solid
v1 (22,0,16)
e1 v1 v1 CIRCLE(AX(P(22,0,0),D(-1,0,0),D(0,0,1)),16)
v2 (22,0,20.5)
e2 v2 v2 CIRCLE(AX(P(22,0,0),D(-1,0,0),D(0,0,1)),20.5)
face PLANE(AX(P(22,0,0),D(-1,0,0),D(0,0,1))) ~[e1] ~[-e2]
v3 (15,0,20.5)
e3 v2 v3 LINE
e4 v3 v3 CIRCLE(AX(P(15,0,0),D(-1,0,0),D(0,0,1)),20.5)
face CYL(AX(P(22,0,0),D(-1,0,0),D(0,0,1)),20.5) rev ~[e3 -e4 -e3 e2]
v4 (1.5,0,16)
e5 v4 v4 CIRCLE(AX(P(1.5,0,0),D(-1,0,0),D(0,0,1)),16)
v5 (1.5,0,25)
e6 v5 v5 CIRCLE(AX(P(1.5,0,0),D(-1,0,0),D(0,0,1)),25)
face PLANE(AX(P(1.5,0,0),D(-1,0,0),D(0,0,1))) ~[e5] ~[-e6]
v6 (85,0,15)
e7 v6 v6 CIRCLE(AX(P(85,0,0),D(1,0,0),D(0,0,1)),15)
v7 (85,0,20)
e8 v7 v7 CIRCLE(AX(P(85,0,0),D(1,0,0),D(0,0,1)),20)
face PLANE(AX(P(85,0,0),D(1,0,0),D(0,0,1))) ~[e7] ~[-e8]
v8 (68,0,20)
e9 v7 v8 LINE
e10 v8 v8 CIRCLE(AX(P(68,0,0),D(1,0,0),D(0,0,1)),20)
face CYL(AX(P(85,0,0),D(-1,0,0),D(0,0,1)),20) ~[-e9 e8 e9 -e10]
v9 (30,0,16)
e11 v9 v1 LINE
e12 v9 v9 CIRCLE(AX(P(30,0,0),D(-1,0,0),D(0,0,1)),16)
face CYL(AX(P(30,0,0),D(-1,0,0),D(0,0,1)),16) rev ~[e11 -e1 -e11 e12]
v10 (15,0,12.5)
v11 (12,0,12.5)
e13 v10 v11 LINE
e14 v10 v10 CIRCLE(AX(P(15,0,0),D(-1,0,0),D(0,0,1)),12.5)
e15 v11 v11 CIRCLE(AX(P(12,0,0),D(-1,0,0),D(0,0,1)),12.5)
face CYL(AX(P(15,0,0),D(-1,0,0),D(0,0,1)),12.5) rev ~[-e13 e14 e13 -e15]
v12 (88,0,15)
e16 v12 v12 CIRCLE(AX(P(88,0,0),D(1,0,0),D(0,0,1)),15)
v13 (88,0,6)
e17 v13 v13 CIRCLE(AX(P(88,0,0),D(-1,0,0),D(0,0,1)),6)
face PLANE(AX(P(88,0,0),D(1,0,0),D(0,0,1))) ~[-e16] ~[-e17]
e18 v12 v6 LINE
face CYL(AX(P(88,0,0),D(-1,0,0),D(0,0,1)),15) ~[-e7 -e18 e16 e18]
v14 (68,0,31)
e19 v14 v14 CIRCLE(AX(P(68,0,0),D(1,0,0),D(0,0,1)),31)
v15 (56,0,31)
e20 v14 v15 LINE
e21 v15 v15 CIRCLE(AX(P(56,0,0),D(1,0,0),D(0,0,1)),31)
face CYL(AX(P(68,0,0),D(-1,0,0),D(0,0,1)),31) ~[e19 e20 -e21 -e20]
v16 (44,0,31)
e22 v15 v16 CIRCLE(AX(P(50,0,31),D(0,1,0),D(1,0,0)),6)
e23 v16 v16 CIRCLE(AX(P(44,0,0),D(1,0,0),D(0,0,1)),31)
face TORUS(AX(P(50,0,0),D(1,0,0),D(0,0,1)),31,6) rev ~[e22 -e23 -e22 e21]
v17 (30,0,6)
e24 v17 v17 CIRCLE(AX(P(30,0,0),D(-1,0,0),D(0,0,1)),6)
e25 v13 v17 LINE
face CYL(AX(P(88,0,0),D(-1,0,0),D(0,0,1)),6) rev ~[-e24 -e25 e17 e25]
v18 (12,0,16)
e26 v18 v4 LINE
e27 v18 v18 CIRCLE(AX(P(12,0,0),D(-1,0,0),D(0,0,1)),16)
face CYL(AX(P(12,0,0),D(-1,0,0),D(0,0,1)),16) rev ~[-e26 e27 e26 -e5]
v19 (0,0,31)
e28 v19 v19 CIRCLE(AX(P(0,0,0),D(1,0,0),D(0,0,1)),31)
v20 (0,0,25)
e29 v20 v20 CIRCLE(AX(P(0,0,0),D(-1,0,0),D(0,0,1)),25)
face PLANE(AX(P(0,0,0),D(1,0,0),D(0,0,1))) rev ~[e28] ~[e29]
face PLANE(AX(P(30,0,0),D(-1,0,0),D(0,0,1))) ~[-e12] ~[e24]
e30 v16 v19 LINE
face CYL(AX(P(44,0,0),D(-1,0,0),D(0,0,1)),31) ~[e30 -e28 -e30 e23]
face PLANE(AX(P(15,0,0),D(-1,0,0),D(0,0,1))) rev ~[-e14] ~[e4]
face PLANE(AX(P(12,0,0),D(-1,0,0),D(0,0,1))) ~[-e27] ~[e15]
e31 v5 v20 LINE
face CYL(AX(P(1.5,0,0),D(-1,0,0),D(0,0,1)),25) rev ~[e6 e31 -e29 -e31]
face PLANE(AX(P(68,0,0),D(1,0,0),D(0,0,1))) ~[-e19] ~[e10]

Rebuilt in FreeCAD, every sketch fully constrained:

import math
import FreeCAD as App
import Part
import Sketcher
from FreeCAD import Vector


def add_polygon(sketch, points):
    """Adds a closed chain of lines whose ends are joined by coincident constraints."""
    first, n = sketch.GeometryCount, len(points)
    for a, b in zip(points, points[1:] + points[:1]):
        sketch.addGeometry(Part.LineSegment(App.Vector(*a, 0), App.Vector(*b, 0)), False)
    for i in range(n):
        sketch.addConstraint(Sketcher.Constraint("Coincident", first + i, 2, first + (i + 1) % n, 1))

doc = App.newDocument("Part")
body = doc.addObject("PartDesign::Body", "Body")

# Sketch on XZ plane
sketch1 = body.newObject("Sketcher::SketchObject", "Sketch")
sketch1.AttachmentSupport = (doc.getObject("XZ_Plane"), [""])
sketch1.MapMode = "FlatFace"
sketch1.addGeometry([
    Part.LineSegment(Vector(0, 31, 0), Vector(0, 0, 0)),  # 0
    Part.LineSegment(Vector(0, 0, 0), Vector(88, 0, 0)),  # 1
    Part.LineSegment(Vector(88, 0, 0), Vector(88, 15, 0)),  # 2
    Part.LineSegment(Vector(88, 15, 0), Vector(85, 15, 0)),  # 3
    Part.LineSegment(Vector(85, 15, 0), Vector(85, 20, 0)),  # 4
    Part.LineSegment(Vector(85, 20, 0), Vector(68, 20, 0)),  # 5
    Part.LineSegment(Vector(68, 20, 0), Vector(68, 31, 0)),  # 6
    Part.LineSegment(Vector(68, 31, 0), Vector(56, 31, 0)),  # 7
    Part.ArcOfCircle(Part.Circle(Vector(50, 31, 0), Vector(0, 0, 1), 6), math.radians(180), math.radians(360)),  # 8
    Part.LineSegment(Vector(44, 31, 0), Vector(0, 31, 0)),  # 9
], False)
sketch1.addConstraint([
    Sketcher.Constraint("Coincident", 0, 2, 1, 1),
    Sketcher.Constraint("Coincident", 1, 2, 2, 1),
    Sketcher.Constraint("Coincident", 2, 2, 3, 1),
    Sketcher.Constraint("Coincident", 3, 2, 4, 1),
    Sketcher.Constraint("Coincident", 4, 2, 5, 1),
    Sketcher.Constraint("Coincident", 5, 2, 6, 1),
    Sketcher.Constraint("Coincident", 6, 2, 7, 1),
    Sketcher.Constraint("Coincident", 7, 2, 8, 2),
    Sketcher.Constraint("Coincident", 8, 1, 9, 1),
    Sketcher.Constraint("Coincident", 9, 2, 0, 1),
    Sketcher.Constraint("Vertical", 0),
    Sketcher.Constraint("Horizontal", 1),
    Sketcher.Constraint("Vertical", 2),
    Sketcher.Constraint("Horizontal", 3),
    Sketcher.Constraint("Vertical", 4),
    Sketcher.Constraint("Horizontal", 5),
    Sketcher.Constraint("Vertical", 6),
    Sketcher.Constraint("Horizontal", 7),
    Sketcher.Constraint("Horizontal", 9),
    Sketcher.Constraint("Coincident", 0, 2, -1, 1),
    Sketcher.Constraint("Horizontal", 8, 3, 6, 2),
    Sketcher.Constraint("Horizontal", 7, 2, 8, 1),
    Sketcher.Constraint("Radius", 8, 6.0),
    Sketcher.Constraint("DistanceX", 1, 1, 1, 2, 88.0),
    Sketcher.Constraint("DistanceX", 3, 2, 3, 1, 3.0),
    Sketcher.Constraint("DistanceX", 5, 2, 5, 1, 17.0),
    Sketcher.Constraint("DistanceX", 7, 2, 7, 1, 12.0),
    Sketcher.Constraint("DistanceY", 0, 2, 0, 1, 31.0),
    Sketcher.Constraint("DistanceY", 2, 1, 2, 2, 15.0),
    Sketcher.Constraint("DistanceY", 4, 1, 4, 2, 5.0),
])
revolution = body.newObject("PartDesign::Revolution", "Revolution")
revolution.Profile = sketch1
revolution.ReferenceAxis = (sketch1, ["H_Axis"])
revolution.Angle = 360

# Sketch on XZ plane
sketch2 = body.newObject("Sketcher::SketchObject", "Sketch001")
sketch2.AttachmentSupport = (doc.getObject("XZ_Plane"), [""])
sketch2.MapMode = "FlatFace"
add_polygon(sketch2, [(0, 25), (0, 0), (88, 0), (88, 6), (30, 6), (30, 16), (22, 16), (22, 20.5), (15, 20.5), (15, 12.5), (12, 12.5), (12, 16), (1.5, 16), (1.5, 25)])  # lines 0-13
sketch2.addConstraint([
    Sketcher.Constraint("Vertical", 0),
    Sketcher.Constraint("Horizontal", 1),
    Sketcher.Constraint("Vertical", 2),
    Sketcher.Constraint("Horizontal", 3),
    Sketcher.Constraint("Vertical", 4),
    Sketcher.Constraint("Horizontal", 5),
    Sketcher.Constraint("Vertical", 6),
    Sketcher.Constraint("Horizontal", 7),
    Sketcher.Constraint("Vertical", 8),
    Sketcher.Constraint("Horizontal", 9),
    Sketcher.Constraint("Vertical", 10),
    Sketcher.Constraint("Horizontal", 11),
    Sketcher.Constraint("Vertical", 12),
    Sketcher.Constraint("Horizontal", 13),
    Sketcher.Constraint("Coincident", 0, 2, -1, 1),
    Sketcher.Constraint("Horizontal", 5, 2, 10, 2),
    Sketcher.Constraint("Equal", 5, 8),
    Sketcher.Constraint("DistanceX", 1, 1, 1, 2, 88.0),
    Sketcher.Constraint("DistanceX", 3, 2, 3, 1, 58.0),
    Sketcher.Constraint("DistanceX", 5, 2, 5, 1, 8.0),
    Sketcher.Constraint("DistanceX", 7, 2, 7, 1, 7.0),
    Sketcher.Constraint("DistanceX", 9, 2, 9, 1, 3.0),
    Sketcher.Constraint("DistanceY", 0, 2, 0, 1, 25.0),
    Sketcher.Constraint("DistanceY", 2, 1, 2, 2, 6.0),
    Sketcher.Constraint("DistanceY", 4, 1, 4, 2, 10.0),
    Sketcher.Constraint("DistanceX", 11, 2, 11, 1, 10.5),
    Sketcher.Constraint("DistanceY", 6, 1, 6, 2, 4.5),
])
groove = body.newObject("PartDesign::Groove", "Groove")
groove.Profile = sketch2
groove.ReferenceAxis = (sketch2, ["H_Axis"])
groove.Angle = 360

doc.recompute()
